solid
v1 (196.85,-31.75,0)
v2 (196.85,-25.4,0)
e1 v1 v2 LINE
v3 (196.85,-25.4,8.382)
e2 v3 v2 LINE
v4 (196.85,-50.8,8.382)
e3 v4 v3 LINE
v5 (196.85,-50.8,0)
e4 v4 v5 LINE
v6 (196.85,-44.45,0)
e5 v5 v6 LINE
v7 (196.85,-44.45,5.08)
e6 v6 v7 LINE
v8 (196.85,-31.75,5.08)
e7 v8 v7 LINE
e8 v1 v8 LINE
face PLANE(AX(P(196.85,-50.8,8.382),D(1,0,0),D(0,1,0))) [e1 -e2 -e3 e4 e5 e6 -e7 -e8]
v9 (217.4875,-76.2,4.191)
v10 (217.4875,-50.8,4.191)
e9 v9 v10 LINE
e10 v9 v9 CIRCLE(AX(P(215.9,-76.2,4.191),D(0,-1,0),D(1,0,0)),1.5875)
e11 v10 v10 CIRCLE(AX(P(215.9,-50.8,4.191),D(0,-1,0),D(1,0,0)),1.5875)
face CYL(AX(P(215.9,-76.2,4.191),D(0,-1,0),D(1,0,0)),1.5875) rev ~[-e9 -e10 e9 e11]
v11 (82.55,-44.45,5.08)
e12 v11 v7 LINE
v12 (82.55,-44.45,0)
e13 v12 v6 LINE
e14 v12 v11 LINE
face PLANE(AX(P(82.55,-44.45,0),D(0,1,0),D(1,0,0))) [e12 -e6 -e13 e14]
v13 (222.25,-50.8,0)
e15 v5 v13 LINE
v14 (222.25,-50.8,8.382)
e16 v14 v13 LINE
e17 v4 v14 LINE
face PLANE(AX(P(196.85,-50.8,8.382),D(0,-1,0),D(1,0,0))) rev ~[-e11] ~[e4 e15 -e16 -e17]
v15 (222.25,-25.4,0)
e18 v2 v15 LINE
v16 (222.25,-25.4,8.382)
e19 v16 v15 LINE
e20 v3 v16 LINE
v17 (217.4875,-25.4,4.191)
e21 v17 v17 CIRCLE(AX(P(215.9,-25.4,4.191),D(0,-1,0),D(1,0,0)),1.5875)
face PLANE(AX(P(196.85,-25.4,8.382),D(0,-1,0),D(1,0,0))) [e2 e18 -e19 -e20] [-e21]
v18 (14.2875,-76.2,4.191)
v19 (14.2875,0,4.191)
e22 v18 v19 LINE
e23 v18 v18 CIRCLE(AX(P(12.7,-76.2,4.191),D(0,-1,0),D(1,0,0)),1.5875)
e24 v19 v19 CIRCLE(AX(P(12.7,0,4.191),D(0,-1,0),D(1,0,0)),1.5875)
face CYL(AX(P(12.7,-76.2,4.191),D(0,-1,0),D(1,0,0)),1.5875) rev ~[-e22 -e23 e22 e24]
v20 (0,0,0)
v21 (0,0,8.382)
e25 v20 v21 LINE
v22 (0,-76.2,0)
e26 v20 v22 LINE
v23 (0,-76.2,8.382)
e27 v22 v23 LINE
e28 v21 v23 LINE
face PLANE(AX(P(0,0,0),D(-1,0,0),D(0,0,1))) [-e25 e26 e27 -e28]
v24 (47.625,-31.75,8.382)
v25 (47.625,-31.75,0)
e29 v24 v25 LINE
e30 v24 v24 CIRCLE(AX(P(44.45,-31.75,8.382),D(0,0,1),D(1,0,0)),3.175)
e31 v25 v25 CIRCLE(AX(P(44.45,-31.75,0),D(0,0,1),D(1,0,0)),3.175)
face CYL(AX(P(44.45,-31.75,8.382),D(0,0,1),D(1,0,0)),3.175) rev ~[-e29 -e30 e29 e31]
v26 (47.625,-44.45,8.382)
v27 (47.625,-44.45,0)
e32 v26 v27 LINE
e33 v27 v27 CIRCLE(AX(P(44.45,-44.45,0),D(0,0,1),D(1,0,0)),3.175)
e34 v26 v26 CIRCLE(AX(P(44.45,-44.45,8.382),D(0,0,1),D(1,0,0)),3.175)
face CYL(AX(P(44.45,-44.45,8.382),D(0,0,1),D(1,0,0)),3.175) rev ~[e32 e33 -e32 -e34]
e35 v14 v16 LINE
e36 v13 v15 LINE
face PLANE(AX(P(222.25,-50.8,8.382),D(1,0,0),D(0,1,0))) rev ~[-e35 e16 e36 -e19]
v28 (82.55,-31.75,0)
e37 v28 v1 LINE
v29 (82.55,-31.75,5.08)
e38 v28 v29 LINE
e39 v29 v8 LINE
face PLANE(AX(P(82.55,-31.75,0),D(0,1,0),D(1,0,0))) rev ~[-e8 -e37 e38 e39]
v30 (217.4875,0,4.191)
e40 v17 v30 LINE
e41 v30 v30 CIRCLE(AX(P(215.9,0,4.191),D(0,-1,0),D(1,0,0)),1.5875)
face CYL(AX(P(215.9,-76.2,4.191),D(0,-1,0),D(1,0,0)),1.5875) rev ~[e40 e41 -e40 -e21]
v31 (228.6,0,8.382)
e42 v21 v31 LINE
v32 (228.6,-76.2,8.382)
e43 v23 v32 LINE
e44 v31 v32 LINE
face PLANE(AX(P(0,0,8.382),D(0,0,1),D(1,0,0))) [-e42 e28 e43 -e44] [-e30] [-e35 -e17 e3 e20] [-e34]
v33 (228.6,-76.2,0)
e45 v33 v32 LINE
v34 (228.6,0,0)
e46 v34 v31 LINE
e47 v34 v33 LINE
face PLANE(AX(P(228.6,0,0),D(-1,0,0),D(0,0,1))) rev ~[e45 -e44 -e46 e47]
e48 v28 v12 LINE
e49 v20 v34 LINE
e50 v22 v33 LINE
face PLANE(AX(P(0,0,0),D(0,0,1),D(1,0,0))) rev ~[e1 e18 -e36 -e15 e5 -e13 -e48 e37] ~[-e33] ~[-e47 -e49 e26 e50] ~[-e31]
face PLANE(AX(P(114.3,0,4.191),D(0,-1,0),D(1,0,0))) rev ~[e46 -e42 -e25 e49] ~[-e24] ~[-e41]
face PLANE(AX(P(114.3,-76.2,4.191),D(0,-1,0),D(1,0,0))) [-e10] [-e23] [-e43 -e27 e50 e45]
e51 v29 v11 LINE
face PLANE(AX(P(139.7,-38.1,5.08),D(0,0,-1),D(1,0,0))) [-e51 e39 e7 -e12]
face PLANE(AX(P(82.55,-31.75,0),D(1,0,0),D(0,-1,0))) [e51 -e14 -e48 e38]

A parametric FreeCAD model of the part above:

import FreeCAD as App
import Part
import Sketcher
Q = App.Units.Quantity

doc = App.newDocument("Part")
params = doc.addObject("Spreadsheet::Sheet", "Params")
for row, (alias, value) in enumerate([
    ("sketch1_width", "9 in"),
    ("sketch1_height", "0.33 in"),
    ("pad1_length", "3 in"),
    ("sketch2_diameter", "0.125 in"),
    ("sketch3_diameter", "0.25 in"),
    ("sketch3_width", "1 in"),
    ("sketch4_width", "4.5 in"),
    ("sketch4_height", "0.5 in"),
    ("pocket3_length", "0.2 in"),
], start=1):
    params.set(f"A{row}", alias)
    params.set(f"B{row}", "=" + value)
    params.setAlias(f"B{row}", alias)

body = doc.addObject("PartDesign::Body", "Body")

# Sketch on XZ plane
sketch1 = body.newObject("Sketcher::SketchObject", "Sketch")
sketch1.AttachmentSupport = (doc.getObject("XZ_Plane"), [""])
sketch1.MapMode = "FlatFace"
sketch1.addGeometry([
    Part.LineSegment(App.Vector(0, 8, 0), App.Vector(0, 0, 0)),
    Part.LineSegment(App.Vector(0, 0, 0), App.Vector(229, 0, 0)),
    Part.LineSegment(App.Vector(229, 0, 0), App.Vector(229, 8, 0)),
    Part.LineSegment(App.Vector(229, 8, 0), App.Vector(0, 8, 0)),
], False)
sketch1.addConstraint([
    Sketcher.Constraint("Coincident", 0, 2, 1, 1),
    Sketcher.Constraint("Coincident", 1, 2, 2, 1),
    Sketcher.Constraint("Coincident", 2, 2, 3, 1),
    Sketcher.Constraint("Coincident", 3, 2, 0, 1),
    Sketcher.Constraint("Vertical", 0),
    Sketcher.Constraint("Horizontal", 1),
    Sketcher.Constraint("Vertical", 2),
    Sketcher.Constraint("Horizontal", 3),
    Sketcher.Constraint("Coincident", 0, 2, -1, 1),
    Sketcher.Constraint("DistanceX", 1, 1, 1, 2, Q("9 in")),
    Sketcher.Constraint("DistanceY", 0, 2, 0, 1, Q("0.33 in")),
])
sketch1.setExpression("Constraints[9]", "Params.sketch1_width")
sketch1.setExpression("Constraints[10]", "Params.sketch1_height")
pad1 = body.newObject("PartDesign::Pad", "Pad")
pad1.Profile = sketch1
pad1.setExpression("Length", "Params.pad1_length")

# Sketch on XZ plane
sketch2 = body.newObject("Sketcher::SketchObject", "Sketch001")
sketch2.AttachmentSupport = (doc.getObject("XZ_Plane"), [""])
sketch2.MapMode = "FlatFace"
sketch2.AttachmentOffset = App.Placement(App.Vector(0, 0, 3 * 25.4), App.Rotation())
sketch2.addGeometry([
    Part.Circle(App.Vector(12.7, 4.2, 0), App.Vector(0, 0, 1), 1.6),
    Part.Circle(App.Vector(215.9, 4.2, 0), App.Vector(0, 0, 1), 1.6),
], False)
sketch2.addConstraint([
    Sketcher.Constraint("Equal", 0, 1),
    Sketcher.Constraint("Horizontal", 0, 3, 1, 3),
    Sketcher.Constraint("Diameter", 0, Q("0.125 in")),
    Sketcher.Constraint("DistanceX", 0, 3, 1, 3, Q("8 in")),
    Sketcher.Constraint("DistanceX", -1, 1, 0, 3, Q("0.5 in")),
    Sketcher.Constraint("DistanceY", -1, 1, 0, 3, Q("0.165 in")),
])
sketch2.setExpression("Constraints[2]", "Params.sketch2_diameter")
pocket1 = body.newObject("PartDesign::Pocket", "Pocket")
pocket1.Profile = sketch2
pocket1.Type = "ThroughAll"

# Sketch on XY plane
sketch3 = body.newObject("Sketcher::SketchObject", "Sketch002")
sketch3.AttachmentSupport = (doc.getObject("XY_Plane"), [""])
sketch3.MapMode = "FlatFace"
sketch3.AttachmentOffset = App.Placement(App.Vector(0, 0, 0.33 * 25.4), App.Rotation())
sketch3.addGeometry([
    Part.LineSegment(App.Vector(196.8, -25.4, 0), App.Vector(196.8, -50.8, 0)),  # 0
    Part.LineSegment(App.Vector(196.8, -50.8, 0), App.Vector(222.2, -50.8, 0)),  # 1
    Part.LineSegment(App.Vector(222.2, -50.8, 0), App.Vector(222.2, -25.4, 0)),  # 2
    Part.LineSegment(App.Vector(222.2, -25.4, 0), App.Vector(196.8, -25.4, 0)),  # 3
    Part.Circle(App.Vector(44.5, -31.8, 0), App.Vector(0, 0, 1), 3.2),  # 4
    Part.Circle(App.Vector(44.5, -44.5, 0), App.Vector(0, 0, 1), 3.2),  # 5
], False)
sketch3.addConstraint([
    Sketcher.Constraint("Coincident", 0, 2, 1, 1),
    Sketcher.Constraint("Coincident", 1, 2, 2, 1),
    Sketcher.Constraint("Coincident", 2, 2, 3, 1),
    Sketcher.Constraint("Coincident", 3, 2, 0, 1),
    Sketcher.Constraint("Vertical", 0),
    Sketcher.Constraint("Horizontal", 1),
    Sketcher.Constraint("Vertical", 2),
    Sketcher.Constraint("Horizontal", 3),
    Sketcher.Constraint("Equal", 4, 5),
    Sketcher.Constraint("Vertical", 4, 3, 5, 3),
    Sketcher.Constraint("Equal", 3, 0),
    Sketcher.Constraint("Diameter", 4, Q("0.25 in")),
    Sketcher.Constraint("DistanceX", 1, 1, 1, 2, Q("1 in")),
    Sketcher.Constraint("DistanceY", 0, 2, -1, 1, Q("2 in")),
    Sketcher.Constraint("DistanceX", 5, 3, 0, 2, Q("6 in")),
    Sketcher.Constraint("DistanceY", 5, 3, 4, 3, Q("0.5 in")),
    Sketcher.Constraint("DistanceX", -1, 1, 4, 3, Q("1.75 in")),
    Sketcher.Constraint("DistanceY", 4, 3, -1, 1, Q("1.25 in")),
])
sketch3.setExpression("Constraints[11]", "Params.sketch3_diameter")
sketch3.setExpression("Constraints[12]", "Params.sketch3_width")
pocket2 = body.newObject("PartDesign::Pocket", "Pocket001")
pocket2.Profile = sketch3
pocket2.Type = "ThroughAll"

# Sketch on XY plane
sketch4 = body.newObject("Sketcher::SketchObject", "Sketch003")
sketch4.AttachmentSupport = (doc.getObject("XY_Plane"), [""])
sketch4.MapMode = "FlatFace"
sketch4.addGeometry([
    Part.LineSegment(App.Vector(83, -44, 0), App.Vector(83, -32, 0)),
    Part.LineSegment(App.Vector(83, -32, 0), App.Vector(197, -32, 0)),
    Part.LineSegment(App.Vector(197, -32, 0), App.Vector(197, -44, 0)),
    Part.LineSegment(App.Vector(197, -44, 0), App.Vector(83, -44, 0)),
], False)
sketch4.addConstraint([
    Sketcher.Constraint("Coincident", 0, 2, 1, 1),
    Sketcher.Constraint("Coincident", 1, 2, 2, 1),
    Sketcher.Constraint("Coincident", 2, 2, 3, 1),
    Sketcher.Constraint("Coincident", 3, 2, 0, 1),
    Sketcher.Constraint("Vertical", 0),
    Sketcher.Constraint("Horizontal", 1),
    Sketcher.Constraint("Vertical", 2),
    Sketcher.Constraint("Horizontal", 3),
    Sketcher.Constraint("DistanceX", 1, 1, 1, 2, Q("4.5 in")),
    Sketcher.Constraint("DistanceY", 0, 1, 0, 2, Q("0.5 in")),
    Sketcher.Constraint("DistanceX", -1, 1, 0, 2, Q("3.25 in")),
    Sketcher.Constraint("DistanceY", 0, 2, -1, 1, Q("1.25 in")),
])
sketch4.setExpression("Constraints[8]", "Params.sketch4_width")
sketch4.setExpression("Constraints[9]", "Params.sketch4_height")
pocket3 = body.newObject("PartDesign::Pocket", "Pocket002")
pocket3.Profile = sketch4
pocket3.setExpression("Length", "Params.pocket3_length")
pocket3.Reversed = True

doc.recompute()
